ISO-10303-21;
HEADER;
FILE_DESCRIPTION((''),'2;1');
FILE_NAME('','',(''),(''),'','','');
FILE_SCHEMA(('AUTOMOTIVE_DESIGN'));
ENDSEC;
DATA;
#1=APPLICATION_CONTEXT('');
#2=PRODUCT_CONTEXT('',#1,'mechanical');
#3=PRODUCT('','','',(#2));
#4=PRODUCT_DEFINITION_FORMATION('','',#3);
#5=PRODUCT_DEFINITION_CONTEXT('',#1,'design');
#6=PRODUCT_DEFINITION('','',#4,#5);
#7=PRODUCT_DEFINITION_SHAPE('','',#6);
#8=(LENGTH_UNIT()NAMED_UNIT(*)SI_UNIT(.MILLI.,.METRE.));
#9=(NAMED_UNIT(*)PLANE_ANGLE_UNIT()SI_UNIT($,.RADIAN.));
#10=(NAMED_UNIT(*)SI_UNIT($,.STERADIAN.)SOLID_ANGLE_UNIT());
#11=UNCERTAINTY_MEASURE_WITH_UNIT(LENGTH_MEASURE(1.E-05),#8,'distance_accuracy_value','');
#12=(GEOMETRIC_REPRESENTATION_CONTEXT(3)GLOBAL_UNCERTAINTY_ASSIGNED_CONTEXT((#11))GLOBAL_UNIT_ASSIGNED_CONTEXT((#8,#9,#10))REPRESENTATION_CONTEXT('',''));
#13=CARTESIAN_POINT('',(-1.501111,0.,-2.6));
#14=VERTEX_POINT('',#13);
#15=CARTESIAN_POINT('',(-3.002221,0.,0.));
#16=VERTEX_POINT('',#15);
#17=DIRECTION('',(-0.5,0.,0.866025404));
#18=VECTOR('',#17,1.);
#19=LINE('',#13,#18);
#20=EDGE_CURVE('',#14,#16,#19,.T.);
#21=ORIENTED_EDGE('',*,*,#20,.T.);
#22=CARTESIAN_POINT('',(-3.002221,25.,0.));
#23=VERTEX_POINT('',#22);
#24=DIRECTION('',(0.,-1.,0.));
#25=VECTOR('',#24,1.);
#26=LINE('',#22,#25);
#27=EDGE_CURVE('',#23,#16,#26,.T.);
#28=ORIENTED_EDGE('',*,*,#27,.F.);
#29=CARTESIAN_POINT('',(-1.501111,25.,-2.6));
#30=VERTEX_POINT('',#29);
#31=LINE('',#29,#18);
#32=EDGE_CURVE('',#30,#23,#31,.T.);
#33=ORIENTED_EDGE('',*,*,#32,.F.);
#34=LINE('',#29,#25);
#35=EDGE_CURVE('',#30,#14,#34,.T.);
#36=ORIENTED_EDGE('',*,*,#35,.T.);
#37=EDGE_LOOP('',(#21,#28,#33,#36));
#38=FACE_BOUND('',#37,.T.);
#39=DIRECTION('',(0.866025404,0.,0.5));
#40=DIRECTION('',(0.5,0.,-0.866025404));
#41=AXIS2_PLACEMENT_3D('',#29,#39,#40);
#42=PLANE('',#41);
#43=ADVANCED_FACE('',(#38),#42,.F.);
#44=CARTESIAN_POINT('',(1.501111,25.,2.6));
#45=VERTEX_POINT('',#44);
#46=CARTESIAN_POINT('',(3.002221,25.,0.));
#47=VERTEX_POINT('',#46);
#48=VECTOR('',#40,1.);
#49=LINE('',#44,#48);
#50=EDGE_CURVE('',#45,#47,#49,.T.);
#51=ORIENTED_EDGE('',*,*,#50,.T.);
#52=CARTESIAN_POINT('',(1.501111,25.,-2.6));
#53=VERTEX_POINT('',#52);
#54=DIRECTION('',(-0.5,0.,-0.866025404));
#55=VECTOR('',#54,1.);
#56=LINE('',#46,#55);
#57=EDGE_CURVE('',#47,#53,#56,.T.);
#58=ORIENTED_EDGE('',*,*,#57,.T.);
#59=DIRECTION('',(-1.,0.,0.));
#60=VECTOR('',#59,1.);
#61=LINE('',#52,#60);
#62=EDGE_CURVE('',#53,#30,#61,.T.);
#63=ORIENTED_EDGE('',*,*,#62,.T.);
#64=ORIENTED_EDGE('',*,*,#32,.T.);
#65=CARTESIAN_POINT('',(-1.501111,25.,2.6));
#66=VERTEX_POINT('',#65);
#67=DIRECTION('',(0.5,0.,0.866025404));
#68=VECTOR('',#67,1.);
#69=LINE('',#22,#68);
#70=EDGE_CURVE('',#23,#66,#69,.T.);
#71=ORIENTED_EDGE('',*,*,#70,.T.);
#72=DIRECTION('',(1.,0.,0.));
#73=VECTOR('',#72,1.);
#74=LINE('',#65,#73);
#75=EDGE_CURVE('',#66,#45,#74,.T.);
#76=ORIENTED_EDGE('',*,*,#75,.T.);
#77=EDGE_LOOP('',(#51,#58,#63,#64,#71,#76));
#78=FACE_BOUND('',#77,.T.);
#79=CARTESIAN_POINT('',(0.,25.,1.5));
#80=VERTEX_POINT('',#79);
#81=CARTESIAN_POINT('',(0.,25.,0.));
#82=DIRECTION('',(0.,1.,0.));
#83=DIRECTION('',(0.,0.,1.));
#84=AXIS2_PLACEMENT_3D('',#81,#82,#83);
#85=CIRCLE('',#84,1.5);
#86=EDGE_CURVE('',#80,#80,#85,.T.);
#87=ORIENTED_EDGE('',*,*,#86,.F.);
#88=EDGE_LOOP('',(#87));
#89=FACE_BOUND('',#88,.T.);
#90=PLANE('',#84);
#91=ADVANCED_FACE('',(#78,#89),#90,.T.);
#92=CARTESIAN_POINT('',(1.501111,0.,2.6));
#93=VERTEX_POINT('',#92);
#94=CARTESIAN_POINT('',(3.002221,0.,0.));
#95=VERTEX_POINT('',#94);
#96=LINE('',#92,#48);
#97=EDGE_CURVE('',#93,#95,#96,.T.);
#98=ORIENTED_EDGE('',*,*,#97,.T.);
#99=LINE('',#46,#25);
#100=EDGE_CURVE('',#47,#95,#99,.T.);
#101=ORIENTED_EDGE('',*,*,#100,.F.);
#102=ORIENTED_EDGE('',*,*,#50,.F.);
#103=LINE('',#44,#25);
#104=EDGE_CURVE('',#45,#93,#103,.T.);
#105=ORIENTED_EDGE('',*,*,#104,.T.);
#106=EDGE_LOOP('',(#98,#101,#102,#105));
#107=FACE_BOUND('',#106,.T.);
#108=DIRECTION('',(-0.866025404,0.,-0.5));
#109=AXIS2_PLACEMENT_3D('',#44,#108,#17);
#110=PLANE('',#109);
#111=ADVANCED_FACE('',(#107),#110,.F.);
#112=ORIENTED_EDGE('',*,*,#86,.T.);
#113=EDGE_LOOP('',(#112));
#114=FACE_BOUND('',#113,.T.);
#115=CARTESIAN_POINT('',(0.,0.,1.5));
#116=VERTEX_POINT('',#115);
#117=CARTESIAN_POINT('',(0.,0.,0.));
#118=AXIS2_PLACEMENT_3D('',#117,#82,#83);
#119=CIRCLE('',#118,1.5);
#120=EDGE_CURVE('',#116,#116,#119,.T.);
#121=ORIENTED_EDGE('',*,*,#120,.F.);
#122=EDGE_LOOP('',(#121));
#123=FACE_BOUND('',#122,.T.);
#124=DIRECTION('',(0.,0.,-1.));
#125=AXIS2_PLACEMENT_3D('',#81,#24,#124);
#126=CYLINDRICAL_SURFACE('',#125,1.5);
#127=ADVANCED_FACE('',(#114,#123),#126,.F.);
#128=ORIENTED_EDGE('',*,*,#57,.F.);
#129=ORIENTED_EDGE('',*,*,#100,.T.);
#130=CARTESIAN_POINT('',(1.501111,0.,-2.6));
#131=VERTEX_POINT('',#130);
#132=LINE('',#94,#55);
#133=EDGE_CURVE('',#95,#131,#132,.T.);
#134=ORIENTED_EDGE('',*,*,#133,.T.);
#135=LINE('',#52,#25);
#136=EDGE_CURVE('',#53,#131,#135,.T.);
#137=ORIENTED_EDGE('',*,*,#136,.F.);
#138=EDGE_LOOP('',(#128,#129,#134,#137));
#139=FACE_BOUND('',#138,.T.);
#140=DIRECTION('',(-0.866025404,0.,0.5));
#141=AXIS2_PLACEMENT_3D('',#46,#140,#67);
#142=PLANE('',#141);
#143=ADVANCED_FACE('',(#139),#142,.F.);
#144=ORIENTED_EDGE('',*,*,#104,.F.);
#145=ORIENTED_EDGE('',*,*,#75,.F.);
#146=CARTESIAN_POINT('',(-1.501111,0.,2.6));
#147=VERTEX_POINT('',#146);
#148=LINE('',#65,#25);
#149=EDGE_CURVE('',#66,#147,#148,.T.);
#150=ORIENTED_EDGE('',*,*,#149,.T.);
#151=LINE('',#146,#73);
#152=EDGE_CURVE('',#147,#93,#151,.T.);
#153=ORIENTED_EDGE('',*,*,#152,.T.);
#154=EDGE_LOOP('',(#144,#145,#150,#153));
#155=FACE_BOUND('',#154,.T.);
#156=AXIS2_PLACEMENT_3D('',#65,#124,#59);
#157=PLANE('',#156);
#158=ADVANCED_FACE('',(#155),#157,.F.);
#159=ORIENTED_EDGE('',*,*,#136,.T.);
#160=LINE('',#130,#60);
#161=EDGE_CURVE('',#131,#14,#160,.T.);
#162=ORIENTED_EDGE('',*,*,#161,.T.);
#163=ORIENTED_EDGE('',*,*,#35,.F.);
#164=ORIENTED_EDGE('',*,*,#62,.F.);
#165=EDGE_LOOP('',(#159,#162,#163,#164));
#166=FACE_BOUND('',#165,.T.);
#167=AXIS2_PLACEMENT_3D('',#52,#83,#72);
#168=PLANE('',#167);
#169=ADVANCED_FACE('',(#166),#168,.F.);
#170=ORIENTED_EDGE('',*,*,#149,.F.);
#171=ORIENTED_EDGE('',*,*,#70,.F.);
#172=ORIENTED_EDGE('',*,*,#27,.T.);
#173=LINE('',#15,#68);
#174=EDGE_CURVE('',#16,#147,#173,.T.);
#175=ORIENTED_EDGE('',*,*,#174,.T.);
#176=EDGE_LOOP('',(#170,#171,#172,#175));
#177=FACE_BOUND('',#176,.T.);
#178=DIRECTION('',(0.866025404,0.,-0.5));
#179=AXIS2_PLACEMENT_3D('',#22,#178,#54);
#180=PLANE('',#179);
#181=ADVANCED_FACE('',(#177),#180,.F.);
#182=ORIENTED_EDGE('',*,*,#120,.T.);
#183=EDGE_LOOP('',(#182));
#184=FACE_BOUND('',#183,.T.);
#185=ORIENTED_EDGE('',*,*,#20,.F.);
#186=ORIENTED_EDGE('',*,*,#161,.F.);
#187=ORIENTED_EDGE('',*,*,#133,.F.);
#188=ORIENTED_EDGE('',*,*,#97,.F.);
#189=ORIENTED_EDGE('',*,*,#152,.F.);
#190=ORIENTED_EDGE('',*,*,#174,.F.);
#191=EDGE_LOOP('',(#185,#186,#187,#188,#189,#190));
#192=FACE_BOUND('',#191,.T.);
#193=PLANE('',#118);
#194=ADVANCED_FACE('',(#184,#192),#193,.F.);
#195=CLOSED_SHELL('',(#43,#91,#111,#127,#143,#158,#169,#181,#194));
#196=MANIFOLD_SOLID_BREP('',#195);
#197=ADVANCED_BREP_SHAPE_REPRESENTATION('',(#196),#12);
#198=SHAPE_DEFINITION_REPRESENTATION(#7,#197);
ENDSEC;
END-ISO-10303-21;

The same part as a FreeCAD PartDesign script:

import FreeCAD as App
import Part
import Sketcher
Q = App.Units.Quantity


def add_polygon(sketch, points):
    """Adds a closed chain of lines whose ends are joined by coincident constraints."""
    first, n = sketch.GeometryCount, len(points)
    for a, b in zip(points, points[1:] + points[:1]):
        sketch.addGeometry(Part.LineSegment(App.Vector(*a, 0), App.Vector(*b, 0)), False)
    for i in range(n):
        sketch.addConstraint(Sketcher.Constraint("Coincident", first + i, 2, first + (i + 1) % n, 1))

doc = App.newDocument("Part")
body = doc.addObject("PartDesign::Body", "Body")

# Sketch on XZ plane
sketch1 = body.newObject("Sketcher::SketchObject", "Sketch")
sketch1.AttachmentSupport = (doc.getObject("XZ_Plane"), [""])
sketch1.MapMode = "FlatFace"
add_polygon(sketch1, [(3.002221, 0), (1.501111, -2.6), (-1.501111, -2.6), (-3.002221, 0), (-1.501111, 2.6), (1.501111, 2.6)])  # lines 0-5
sketch1.addGeometry(Part.Circle(App.Vector(0, 0, 0), App.Vector(0, 0, 1), 1.5), False)  # 6
sketch1.addConstraint([
    Sketcher.Constraint("Horizontal", 1),
    Sketcher.Constraint("Horizontal", 4),
    Sketcher.Constraint("Coincident", 6, 3, -1, 1),
    Sketcher.Constraint("Symmetric", 0, 2, 3, 2, -1, 1),
    Sketcher.Constraint("Symmetric", 2, 2, 5, 2, -1, 1),
    Sketcher.Constraint("PointOnObject", 2, 2, -1),
    Sketcher.Constraint("Parallel", 2, 5),
    Sketcher.Constraint("Vertical", 1, 2, 3, 2),
    Sketcher.Constraint("Diameter", 6, Q("3 mm")),
    Sketcher.Constraint("Angle", 0, Q("-120 deg")),
    Sketcher.Constraint("DistanceY", 0, 2, -1, 1, Q("2.6 mm")),
    Sketcher.Constraint("DistanceX", 1, 2, 1, 1, Q("3.002221 mm")),
])
pad1 = body.newObject("PartDesign::Pad", "Pad")
pad1.Profile = sketch1
pad1.Length = 25
pad1.Reversed = True

doc.recompute()
